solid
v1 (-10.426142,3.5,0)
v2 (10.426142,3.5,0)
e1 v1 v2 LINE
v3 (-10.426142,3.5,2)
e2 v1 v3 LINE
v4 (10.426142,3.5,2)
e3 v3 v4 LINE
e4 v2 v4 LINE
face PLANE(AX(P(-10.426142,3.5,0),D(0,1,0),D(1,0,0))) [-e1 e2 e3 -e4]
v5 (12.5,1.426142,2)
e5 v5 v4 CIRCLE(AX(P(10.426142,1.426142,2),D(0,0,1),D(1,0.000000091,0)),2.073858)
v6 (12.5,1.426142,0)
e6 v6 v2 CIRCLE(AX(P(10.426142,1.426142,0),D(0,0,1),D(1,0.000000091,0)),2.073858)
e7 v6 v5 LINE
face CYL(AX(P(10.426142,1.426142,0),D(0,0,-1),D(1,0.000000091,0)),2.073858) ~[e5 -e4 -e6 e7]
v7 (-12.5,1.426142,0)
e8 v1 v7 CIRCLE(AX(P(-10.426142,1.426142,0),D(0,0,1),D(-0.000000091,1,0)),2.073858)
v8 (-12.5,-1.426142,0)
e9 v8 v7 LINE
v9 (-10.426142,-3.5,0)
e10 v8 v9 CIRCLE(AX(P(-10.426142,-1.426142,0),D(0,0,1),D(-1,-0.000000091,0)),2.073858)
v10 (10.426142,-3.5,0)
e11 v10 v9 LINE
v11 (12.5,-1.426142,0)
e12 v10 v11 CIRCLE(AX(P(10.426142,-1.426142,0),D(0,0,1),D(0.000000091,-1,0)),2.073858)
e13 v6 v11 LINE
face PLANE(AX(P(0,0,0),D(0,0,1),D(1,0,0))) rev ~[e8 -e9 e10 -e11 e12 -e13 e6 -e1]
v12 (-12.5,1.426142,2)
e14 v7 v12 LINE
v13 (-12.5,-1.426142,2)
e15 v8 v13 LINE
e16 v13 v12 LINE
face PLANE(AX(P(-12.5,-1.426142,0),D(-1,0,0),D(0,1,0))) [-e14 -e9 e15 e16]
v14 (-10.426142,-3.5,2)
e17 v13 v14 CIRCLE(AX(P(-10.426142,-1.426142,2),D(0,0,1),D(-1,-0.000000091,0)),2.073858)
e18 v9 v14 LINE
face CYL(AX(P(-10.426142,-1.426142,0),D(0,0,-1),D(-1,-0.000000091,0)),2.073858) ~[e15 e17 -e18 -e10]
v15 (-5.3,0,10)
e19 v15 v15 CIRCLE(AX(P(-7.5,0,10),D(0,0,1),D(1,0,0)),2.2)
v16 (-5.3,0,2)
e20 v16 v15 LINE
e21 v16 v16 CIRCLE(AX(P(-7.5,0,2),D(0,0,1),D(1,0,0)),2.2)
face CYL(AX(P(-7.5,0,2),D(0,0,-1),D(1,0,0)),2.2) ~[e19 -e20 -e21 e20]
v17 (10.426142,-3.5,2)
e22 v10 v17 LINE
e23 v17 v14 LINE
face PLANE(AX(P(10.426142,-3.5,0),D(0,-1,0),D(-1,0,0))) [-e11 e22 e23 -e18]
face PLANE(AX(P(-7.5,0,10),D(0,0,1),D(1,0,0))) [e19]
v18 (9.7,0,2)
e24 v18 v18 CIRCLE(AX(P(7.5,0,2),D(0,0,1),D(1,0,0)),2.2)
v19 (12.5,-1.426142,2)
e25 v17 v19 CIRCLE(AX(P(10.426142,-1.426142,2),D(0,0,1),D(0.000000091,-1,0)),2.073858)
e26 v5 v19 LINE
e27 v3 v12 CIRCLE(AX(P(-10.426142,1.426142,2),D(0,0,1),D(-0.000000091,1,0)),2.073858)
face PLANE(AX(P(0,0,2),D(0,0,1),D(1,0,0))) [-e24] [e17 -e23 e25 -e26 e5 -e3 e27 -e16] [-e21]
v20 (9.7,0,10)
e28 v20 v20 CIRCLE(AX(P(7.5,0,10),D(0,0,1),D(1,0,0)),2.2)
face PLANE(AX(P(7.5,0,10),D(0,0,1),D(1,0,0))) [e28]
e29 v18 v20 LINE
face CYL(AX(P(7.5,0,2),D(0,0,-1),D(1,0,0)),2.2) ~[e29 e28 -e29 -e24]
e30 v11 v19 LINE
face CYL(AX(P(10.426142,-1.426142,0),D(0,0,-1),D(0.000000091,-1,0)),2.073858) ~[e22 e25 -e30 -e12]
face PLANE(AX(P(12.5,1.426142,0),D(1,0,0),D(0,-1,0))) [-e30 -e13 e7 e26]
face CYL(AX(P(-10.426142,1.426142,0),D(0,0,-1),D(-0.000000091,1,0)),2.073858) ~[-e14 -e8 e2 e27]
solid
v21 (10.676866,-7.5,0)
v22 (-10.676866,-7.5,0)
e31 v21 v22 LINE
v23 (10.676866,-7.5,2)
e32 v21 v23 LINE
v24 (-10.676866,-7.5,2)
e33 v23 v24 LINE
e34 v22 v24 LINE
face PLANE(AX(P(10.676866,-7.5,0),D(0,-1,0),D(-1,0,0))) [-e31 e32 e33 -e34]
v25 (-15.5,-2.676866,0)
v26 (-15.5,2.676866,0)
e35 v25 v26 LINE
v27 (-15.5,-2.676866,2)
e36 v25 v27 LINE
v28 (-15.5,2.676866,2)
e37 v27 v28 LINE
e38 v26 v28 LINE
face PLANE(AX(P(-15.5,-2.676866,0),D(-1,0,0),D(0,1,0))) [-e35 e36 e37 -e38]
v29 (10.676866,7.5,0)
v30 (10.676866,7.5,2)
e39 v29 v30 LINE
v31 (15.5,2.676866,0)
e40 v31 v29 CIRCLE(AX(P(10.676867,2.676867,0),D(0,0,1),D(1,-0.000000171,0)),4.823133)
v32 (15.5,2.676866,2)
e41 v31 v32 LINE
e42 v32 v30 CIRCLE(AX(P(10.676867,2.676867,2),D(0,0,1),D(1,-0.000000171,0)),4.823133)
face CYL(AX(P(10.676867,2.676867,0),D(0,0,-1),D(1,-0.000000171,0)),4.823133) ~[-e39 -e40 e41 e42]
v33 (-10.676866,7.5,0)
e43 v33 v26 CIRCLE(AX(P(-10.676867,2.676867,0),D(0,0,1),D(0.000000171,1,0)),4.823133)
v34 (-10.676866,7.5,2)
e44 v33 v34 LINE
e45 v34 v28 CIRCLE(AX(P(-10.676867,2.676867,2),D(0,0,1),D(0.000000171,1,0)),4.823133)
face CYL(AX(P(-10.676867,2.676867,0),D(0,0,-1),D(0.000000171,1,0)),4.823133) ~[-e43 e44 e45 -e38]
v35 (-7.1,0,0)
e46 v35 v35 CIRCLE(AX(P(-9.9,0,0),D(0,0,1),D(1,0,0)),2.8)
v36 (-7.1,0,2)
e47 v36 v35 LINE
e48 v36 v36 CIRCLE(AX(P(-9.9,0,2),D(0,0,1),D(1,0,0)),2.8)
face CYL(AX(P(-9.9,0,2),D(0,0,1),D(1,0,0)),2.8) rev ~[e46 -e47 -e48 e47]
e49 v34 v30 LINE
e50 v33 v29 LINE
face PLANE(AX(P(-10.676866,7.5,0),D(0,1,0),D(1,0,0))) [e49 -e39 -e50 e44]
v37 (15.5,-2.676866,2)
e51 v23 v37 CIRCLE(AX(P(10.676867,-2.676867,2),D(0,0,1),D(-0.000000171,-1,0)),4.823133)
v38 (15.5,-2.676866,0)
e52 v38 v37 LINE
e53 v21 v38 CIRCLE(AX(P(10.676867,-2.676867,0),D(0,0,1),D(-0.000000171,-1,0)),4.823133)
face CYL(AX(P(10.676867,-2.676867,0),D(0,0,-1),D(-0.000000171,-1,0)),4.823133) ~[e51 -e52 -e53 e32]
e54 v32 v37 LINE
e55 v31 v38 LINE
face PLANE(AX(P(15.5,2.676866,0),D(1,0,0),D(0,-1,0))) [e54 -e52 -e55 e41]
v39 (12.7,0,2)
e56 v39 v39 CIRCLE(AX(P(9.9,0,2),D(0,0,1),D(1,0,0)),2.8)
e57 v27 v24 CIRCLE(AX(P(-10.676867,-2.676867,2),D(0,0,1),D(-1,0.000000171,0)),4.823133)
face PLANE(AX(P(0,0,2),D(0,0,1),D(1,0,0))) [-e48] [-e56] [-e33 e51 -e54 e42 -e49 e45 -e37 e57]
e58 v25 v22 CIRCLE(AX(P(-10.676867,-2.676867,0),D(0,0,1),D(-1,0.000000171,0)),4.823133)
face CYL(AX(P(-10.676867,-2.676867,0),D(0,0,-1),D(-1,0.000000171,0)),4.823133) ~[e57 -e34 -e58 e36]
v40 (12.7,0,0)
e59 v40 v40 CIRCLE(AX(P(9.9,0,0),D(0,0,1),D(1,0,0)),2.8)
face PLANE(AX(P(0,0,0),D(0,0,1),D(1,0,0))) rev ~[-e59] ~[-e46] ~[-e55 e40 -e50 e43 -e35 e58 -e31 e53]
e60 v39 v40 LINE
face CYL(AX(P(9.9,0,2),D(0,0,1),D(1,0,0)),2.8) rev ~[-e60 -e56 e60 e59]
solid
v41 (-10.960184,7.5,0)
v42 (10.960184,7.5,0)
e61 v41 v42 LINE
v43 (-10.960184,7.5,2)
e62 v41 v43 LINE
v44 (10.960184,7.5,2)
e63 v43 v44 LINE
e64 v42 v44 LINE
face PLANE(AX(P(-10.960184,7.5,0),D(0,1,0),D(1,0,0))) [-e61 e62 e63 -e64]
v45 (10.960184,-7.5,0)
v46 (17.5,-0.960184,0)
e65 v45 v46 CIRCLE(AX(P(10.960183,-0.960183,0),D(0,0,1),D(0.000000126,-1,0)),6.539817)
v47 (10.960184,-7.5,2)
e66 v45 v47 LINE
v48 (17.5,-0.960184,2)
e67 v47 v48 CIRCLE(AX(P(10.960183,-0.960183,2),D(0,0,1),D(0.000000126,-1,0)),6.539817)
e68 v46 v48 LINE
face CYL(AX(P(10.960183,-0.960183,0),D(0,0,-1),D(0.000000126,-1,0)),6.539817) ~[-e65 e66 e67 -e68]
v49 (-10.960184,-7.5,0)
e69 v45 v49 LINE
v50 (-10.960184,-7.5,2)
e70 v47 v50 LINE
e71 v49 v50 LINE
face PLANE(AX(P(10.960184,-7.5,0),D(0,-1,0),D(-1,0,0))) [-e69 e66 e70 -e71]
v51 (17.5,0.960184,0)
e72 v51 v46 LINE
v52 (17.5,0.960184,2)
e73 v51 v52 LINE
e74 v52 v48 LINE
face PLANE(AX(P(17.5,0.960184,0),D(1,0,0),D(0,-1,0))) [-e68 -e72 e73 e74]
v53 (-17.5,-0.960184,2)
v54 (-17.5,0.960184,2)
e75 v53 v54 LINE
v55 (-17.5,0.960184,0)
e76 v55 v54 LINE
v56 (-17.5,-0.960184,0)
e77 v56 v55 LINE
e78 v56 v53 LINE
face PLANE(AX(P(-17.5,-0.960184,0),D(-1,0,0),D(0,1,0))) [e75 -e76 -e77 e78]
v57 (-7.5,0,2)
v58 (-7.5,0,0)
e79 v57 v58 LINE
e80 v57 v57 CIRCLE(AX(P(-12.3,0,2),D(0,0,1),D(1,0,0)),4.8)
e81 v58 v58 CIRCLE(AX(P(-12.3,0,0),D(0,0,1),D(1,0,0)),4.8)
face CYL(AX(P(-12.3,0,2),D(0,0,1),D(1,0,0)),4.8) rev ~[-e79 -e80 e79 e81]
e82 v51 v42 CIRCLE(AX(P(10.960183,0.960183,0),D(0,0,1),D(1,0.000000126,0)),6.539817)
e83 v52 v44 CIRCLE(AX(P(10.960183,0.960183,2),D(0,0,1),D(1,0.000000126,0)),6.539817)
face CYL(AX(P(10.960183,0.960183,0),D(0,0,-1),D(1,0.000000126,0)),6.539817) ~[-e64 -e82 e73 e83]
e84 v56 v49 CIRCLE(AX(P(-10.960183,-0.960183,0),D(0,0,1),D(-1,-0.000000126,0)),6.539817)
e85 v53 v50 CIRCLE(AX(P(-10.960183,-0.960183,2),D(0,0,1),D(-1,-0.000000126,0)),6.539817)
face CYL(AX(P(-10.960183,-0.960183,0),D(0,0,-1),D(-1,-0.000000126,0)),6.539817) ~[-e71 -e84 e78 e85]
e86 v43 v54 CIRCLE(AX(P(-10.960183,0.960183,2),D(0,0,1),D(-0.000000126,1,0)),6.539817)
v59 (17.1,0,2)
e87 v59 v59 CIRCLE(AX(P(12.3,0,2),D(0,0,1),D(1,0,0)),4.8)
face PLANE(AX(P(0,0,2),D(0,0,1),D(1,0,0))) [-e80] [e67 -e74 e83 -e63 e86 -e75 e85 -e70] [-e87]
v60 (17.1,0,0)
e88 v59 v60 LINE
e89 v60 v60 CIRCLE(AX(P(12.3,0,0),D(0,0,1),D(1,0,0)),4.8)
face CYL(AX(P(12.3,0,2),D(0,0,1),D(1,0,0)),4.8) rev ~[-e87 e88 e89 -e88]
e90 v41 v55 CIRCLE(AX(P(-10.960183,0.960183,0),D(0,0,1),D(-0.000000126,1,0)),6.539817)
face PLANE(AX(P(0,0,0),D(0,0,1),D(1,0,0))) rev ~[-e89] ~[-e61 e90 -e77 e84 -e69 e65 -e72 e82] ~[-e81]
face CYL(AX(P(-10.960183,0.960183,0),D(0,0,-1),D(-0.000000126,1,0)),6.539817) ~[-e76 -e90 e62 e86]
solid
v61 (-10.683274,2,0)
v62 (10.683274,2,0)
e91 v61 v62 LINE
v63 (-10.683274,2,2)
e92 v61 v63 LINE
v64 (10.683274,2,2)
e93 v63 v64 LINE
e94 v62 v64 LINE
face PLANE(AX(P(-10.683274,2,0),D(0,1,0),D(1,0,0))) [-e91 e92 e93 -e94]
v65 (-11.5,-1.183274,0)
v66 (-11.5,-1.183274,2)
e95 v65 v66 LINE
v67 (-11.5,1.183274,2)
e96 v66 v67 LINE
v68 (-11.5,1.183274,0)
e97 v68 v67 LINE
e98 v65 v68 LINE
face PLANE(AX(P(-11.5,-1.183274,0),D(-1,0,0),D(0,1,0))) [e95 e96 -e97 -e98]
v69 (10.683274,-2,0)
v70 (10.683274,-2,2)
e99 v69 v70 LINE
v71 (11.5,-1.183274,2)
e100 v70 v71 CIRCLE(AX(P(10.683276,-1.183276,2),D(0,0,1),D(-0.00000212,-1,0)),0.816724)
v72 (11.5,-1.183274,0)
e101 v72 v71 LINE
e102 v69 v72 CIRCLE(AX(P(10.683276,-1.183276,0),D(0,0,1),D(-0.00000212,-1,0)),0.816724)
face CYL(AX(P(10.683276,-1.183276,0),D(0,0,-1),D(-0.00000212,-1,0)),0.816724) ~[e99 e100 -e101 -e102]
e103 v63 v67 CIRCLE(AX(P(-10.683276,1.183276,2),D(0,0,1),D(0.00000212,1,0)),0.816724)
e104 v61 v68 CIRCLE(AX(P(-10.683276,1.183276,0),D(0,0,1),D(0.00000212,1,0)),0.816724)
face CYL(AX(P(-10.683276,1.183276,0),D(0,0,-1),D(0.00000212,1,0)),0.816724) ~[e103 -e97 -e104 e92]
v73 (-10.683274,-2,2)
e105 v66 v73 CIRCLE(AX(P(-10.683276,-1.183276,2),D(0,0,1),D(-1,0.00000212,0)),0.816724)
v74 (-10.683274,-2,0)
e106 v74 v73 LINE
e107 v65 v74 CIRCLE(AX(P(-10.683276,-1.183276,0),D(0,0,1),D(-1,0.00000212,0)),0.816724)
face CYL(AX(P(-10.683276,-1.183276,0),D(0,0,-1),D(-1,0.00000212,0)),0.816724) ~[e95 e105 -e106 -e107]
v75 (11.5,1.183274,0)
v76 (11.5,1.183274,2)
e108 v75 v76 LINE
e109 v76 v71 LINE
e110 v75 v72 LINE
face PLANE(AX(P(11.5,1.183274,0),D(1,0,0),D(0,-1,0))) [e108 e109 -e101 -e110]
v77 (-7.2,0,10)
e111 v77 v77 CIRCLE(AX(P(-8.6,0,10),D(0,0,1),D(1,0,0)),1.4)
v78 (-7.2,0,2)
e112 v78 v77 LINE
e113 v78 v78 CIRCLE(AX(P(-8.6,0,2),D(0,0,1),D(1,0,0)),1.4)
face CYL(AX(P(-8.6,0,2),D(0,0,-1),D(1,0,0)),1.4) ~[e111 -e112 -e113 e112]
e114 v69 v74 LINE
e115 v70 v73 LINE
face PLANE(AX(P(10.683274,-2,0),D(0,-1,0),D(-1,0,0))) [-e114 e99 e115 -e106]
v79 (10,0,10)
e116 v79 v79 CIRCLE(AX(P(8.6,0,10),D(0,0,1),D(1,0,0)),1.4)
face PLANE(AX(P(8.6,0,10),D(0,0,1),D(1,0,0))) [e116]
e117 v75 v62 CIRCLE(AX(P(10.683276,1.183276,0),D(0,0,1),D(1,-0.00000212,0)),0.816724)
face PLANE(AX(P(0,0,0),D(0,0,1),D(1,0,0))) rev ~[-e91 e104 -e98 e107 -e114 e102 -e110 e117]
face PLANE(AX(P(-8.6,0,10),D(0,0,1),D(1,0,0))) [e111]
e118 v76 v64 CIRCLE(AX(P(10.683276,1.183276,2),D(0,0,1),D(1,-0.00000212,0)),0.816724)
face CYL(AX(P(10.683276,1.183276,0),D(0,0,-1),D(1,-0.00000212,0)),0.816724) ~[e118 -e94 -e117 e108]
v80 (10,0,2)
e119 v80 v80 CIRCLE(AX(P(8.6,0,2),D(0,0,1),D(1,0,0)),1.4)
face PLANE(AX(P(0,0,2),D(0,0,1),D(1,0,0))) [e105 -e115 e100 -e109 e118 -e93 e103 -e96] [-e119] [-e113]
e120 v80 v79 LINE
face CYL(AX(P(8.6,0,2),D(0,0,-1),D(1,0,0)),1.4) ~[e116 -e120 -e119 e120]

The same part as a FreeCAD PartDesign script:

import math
import FreeCAD as App
import Part
import Sketcher

V = App.Vector

doc = App.newDocument("Part")
body = doc.addObject("PartDesign::Body", "Body")

sketch1 = doc.addObject("Sketcher::SketchObject", "Sketch")
body.addObject(sketch1)
sketch1.AttachmentSupport = (doc.XY_Plane, [""])
sketch1.MapMode = "FlatFace"
sketch1.addGeometry([
    Part.ArcOfCircle(Part.Circle(V(-10.4, 1.4, 0), V(0, 0, 1), 2.1), math.radians(90), math.radians(180)),
    Part.LineSegment(V(-12.5, 1.4, 0), V(-12.5, -1.4, 0)),
    Part.ArcOfCircle(Part.Circle(V(-10.4, -1.4, 0), V(0, 0, 1), 2.1), math.radians(-180), math.radians(-90)),
    Part.LineSegment(V(-10.4, -3.5, 0), V(10.4, -3.5, 0)),
    Part.ArcOfCircle(Part.Circle(V(10.4, -1.4, 0), V(0, 0, 1), 2.1), math.radians(-90), math.radians(0)),
    Part.LineSegment(V(12.5, -1.4, 0), V(12.5, 1.4, 0)),
    Part.ArcOfCircle(Part.Circle(V(10.4, 1.4, 0), V(0, 0, 1), 2.1), math.radians(0), math.radians(90)),
    Part.LineSegment(V(10.4, 3.5, 0), V(-10.4, 3.5, 0)),
], False)
sketch1.addConstraint([
    Sketcher.Constraint("Tangent", 0, 2, 1, 1),
    Sketcher.Constraint("Tangent", 1, 2, 2, 1),
    Sketcher.Constraint("Tangent", 2, 2, 3, 1),
    Sketcher.Constraint("Tangent", 3, 2, 4, 1),
    Sketcher.Constraint("Tangent", 4, 2, 5, 1),
    Sketcher.Constraint("Tangent", 5, 2, 6, 1),
    Sketcher.Constraint("Tangent", 6, 2, 7, 1),
    Sketcher.Constraint("Tangent", 7, 2, 0, 1),
    Sketcher.Constraint("Vertical", 1),
    Sketcher.Constraint("Horizontal", 3),
    Sketcher.Constraint("Vertical", 5),
    Sketcher.Constraint("Horizontal", 7),
    Sketcher.Constraint("Equal", 0, 2),
    Sketcher.Constraint("Equal", 2, 4),
    Sketcher.Constraint("Equal", 4, 6),
    Sketcher.Constraint("Symmetric", 0, 3, 4, 3, -1, 1),
    Sketcher.Constraint("DistanceY", 3, 2, 6, 2, 7.0),
    Sketcher.Constraint("DistanceX", 0, 2, -1, 1, 12.5),
    Sketcher.Constraint("Radius", 0, 2.073858),
])
pad1 = doc.addObject("PartDesign::Pad", "Pad")
body.addObject(pad1)
pad1.Profile = sketch1
pad1.Length = 2

sketch2 = doc.addObject("Sketcher::SketchObject", "Sketch001")
body.addObject(sketch2)
sketch2.AttachmentSupport = (doc.XY_Plane, [""])
sketch2.MapMode = "FlatFace"
sketch2.AttachmentOffset = App.Placement(V(0, 0, 2), App.Rotation())
sketch2.addGeometry([
    Part.Circle(V(-7.5, 0, 0), V(0, 0, 1), 2.2),
    Part.Circle(V(7.5, 0, 0), V(0, 0, 1), 2.2),
], False)
sketch2.addConstraint([
    Sketcher.Constraint("Equal", 0, 1),
    Sketcher.Constraint("Symmetric", 0, 3, 1, 3, -1, 1),
    Sketcher.Constraint("PointOnObject", 0, 3, -1),
    Sketcher.Constraint("Diameter", 0, 4.4),
    Sketcher.Constraint("DistanceX", 0, 3, 1, 3, 15.0),
])
pad2 = doc.addObject("PartDesign::Pad", "Pad001")
body.addObject(pad2)
pad2.Profile = sketch2
pad2.Length = 8
body2 = doc.addObject("PartDesign::Body", "Body001")

sketch3 = doc.addObject("Sketcher::SketchObject", "Sketch002")
body2.addObject(sketch3)
sketch3.AttachmentSupport = (doc.getObject("XY_Plane001"), [""])
sketch3.MapMode = "FlatFace"
sketch3.addGeometry([
    Part.ArcOfCircle(Part.Circle(V(-11, 1, 0), V(0, 0, 1), 6.5), math.radians(90), math.radians(180)),
    Part.LineSegment(V(-17.5, 1, 0), V(-17.5, -1, 0)),
    Part.ArcOfCircle(Part.Circle(V(-11, -1, 0), V(0, 0, 1), 6.5), math.radians(-180), math.radians(-90)),
    Part.LineSegment(V(-11, -7.5, 0), V(11, -7.5, 0)),
    Part.ArcOfCircle(Part.Circle(V(11, -1, 0), V(0, 0, 1), 6.5), math.radians(-90), math.radians(0)),
    Part.LineSegment(V(17.5, -1, 0), V(17.5, 1, 0)),
    Part.ArcOfCircle(Part.Circle(V(11, 1, 0), V(0, 0, 1), 6.5), math.radians(0), math.radians(90)),
    Part.LineSegment(V(11, 7.5, 0), V(-11, 7.5, 0)),
], False)
sketch3.addConstraint([
    Sketcher.Constraint("Tangent", 0, 2, 1, 1),
    Sketcher.Constraint("Tangent", 1, 2, 2, 1),
    Sketcher.Constraint("Tangent", 2, 2, 3, 1),
    Sketcher.Constraint("Tangent", 3, 2, 4, 1),
    Sketcher.Constraint("Tangent", 4, 2, 5, 1),
    Sketcher.Constraint("Tangent", 5, 2, 6, 1),
    Sketcher.Constraint("Tangent", 6, 2, 7, 1),
    Sketcher.Constraint("Tangent", 7, 2, 0, 1),
    Sketcher.Constraint("Vertical", 1),
    Sketcher.Constraint("Horizontal", 3),
    Sketcher.Constraint("Vertical", 5),
    Sketcher.Constraint("Horizontal", 7),
    Sketcher.Constraint("Equal", 0, 2),
    Sketcher.Constraint("Equal", 2, 4),
    Sketcher.Constraint("Equal", 4, 6),
    Sketcher.Constraint("Symmetric", 0, 3, 4, 3, -1, 1),
    Sketcher.Constraint("DistanceY", 3, 2, 6, 2, 15.0),
    Sketcher.Constraint("DistanceX", 0, 2, -1, 1, 17.5),
    Sketcher.Constraint("Radius", 0, 6.539817),
])
pad3 = doc.addObject("PartDesign::Pad", "Pad002")
body2.addObject(pad3)
pad3.Profile = sketch3
pad3.Length = 2

sketch4 = doc.addObject("Sketcher::SketchObject", "Sketch003")
body2.addObject(sketch4)
sketch4.AttachmentSupport = (doc.getObject("XY_Plane001"), [""])
sketch4.MapMode = "FlatFace"
sketch4.AttachmentOffset = App.Placement(V(0, 0, 2), App.Rotation())
sketch4.addGeometry([
    Part.Circle(V(-12.3, 0, 0), V(0, 0, 1), 4.8),
    Part.Circle(V(12.3, 0, 0), V(0, 0, 1), 4.8),
], False)
sketch4.addConstraint([
    Sketcher.Constraint("Equal", 0, 1),
    Sketcher.Constraint("Symmetric", 0, 3, 1, 3, -1, 1),
    Sketcher.Constraint("PointOnObject", 0, 3, -1),
    Sketcher.Constraint("Diameter", 0, 9.6),
    Sketcher.Constraint("DistanceX", 0, 3, -1, 1, 12.3),
])
pocket1 = doc.addObject("PartDesign::Pocket", "Pocket")
body2.addObject(pocket1)
pocket1.Profile = sketch4
pocket1.Length = 5
body3 = doc.addObject("PartDesign::Body", "Body002")

sketch5 = doc.addObject("Sketcher::SketchObject", "Sketch004")
body3.addObject(sketch5)
sketch5.AttachmentSupport = (doc.getObject("XY_Plane002"), [""])
sketch5.MapMode = "FlatFace"
sketch5.addGeometry([
    Part.ArcOfCircle(Part.Circle(V(-10.7, 1.2, 0), V(0, 0, 1), 0.8), math.radians(90), math.radians(180)),
    Part.LineSegment(V(-11.5, 1.2, 0), V(-11.5, -1.2, 0)),
    Part.ArcOfCircle(Part.Circle(V(-10.7, -1.2, 0), V(0, 0, 1), 0.8), math.radians(180), math.radians(270)),
    Part.LineSegment(V(-10.7, -2, 0), V(10.7, -2, 0)),
    Part.ArcOfCircle(Part.Circle(V(10.7, -1.2, 0), V(0, 0, 1), 0.8), math.radians(-90), math.radians(0)),
    Part.LineSegment(V(11.5, -1.2, 0), V(11.5, 1.2, 0)),
    Part.ArcOfCircle(Part.Circle(V(10.7, 1.2, 0), V(0, 0, 1), 0.8), math.radians(0), math.radians(90)),
    Part.LineSegment(V(10.7, 2, 0), V(-10.7, 2, 0)),
], False)
sketch5.addConstraint([
    Sketcher.Constraint("Coincident", 0, 2, 1, 1),
    Sketcher.Constraint("Coincident", 1, 2, 2, 1),
    Sketcher.Constraint("Coincident", 2, 2, 3, 1),
    Sketcher.Constraint("Coincident", 3, 2, 4, 1),
    Sketcher.Constraint("Coincident", 4, 2, 5, 1),
    Sketcher.Constraint("Coincident", 5, 2, 6, 1),
    Sketcher.Constraint("Coincident", 6, 2, 7, 1),
    Sketcher.Constraint("Coincident", 7, 2, 0, 1),
    Sketcher.Constraint("Vertical", 1),
    Sketcher.Constraint("Horizontal", 3),
    Sketcher.Constraint("Vertical", 5),
    Sketcher.Constraint("Horizontal", 7),
    Sketcher.Constraint("Equal", 0, 2),
    Sketcher.Constraint("Equal", 2, 4),
    Sketcher.Constraint("Equal", 4, 6),
    Sketcher.Constraint("Symmetric", 0, 3, 4, 3, -1, 1),
    Sketcher.Constraint("Horizontal", 6, 3, 0, 2),
    Sketcher.Constraint("Horizontal", 4, 3, 1, 2),
    Sketcher.Constraint("Horizontal", 1, 2, 4, 2),
    Sketcher.Constraint("Horizontal", 0, 2, 5, 2),
    Sketcher.Constraint("Vertical", 0, 3, 2, 2),
    Sketcher.Constraint("Vertical", 6, 3, 3, 2),
    Sketcher.Constraint("Vertical", 3, 2, 6, 2),
    Sketcher.Constraint("Vertical", 2, 2, 7, 2),
    Sketcher.Constraint("DistanceY", 2, 2, -1, 1, 2.0),
    Sketcher.Constraint("DistanceX", 0, 2, -1, 1, 11.5),
    Sketcher.Constraint("Radius", 0, 0.816724),
])
pad4 = doc.addObject("PartDesign::Pad", "Pad003")
body3.addObject(pad4)
pad4.Profile = sketch5
pad4.Length = 2

sketch6 = doc.addObject("Sketcher::SketchObject", "Sketch005")
body3.addObject(sketch6)
sketch6.AttachmentSupport = (doc.getObject("XY_Plane002"), [""])
sketch6.MapMode = "FlatFace"
sketch6.AttachmentOffset = App.Placement(V(0, 0, 2), App.Rotation())
sketch6.addGeometry([
    Part.Circle(V(-8.6, 0, 0), V(0, 0, 1), 1.4),
    Part.Circle(V(8.6, 0, 0), V(0, 0, 1), 1.4),
], False)
sketch6.addConstraint([
    Sketcher.Constraint("Equal", 0, 1),
    Sketcher.Constraint("Symmetric", 0, 3, 1, 3, -1, 1),
    Sketcher.Constraint("PointOnObject", 0, 3, -1),
    Sketcher.Constraint("Diameter", 0, 2.8),
    Sketcher.Constraint("DistanceX", 0, 3, -1, 1, 8.6),
])
pad5 = doc.addObject("PartDesign::Pad", "Pad004")
body3.addObject(pad5)
pad5.Profile = sketch6
pad5.Length = 8
body4 = doc.addObject("PartDesign::Body", "Body003")

sketch7 = doc.addObject("Sketcher::SketchObject", "Sketch006")
body4.addObject(sketch7)
sketch7.AttachmentSupport = (doc.getObject("XY_Plane003"), [""])
sketch7.MapMode = "FlatFace"
sketch7.addGeometry([
    Part.ArcOfCircle(Part.Circle(V(-10.7, 2.7, 0), V(0, 0, 1), 4.8), math.radians(90), math.radians(180)),
    Part.LineSegment(V(-15.5, 2.7, 0), V(-15.5, -2.7, 0)),
    Part.ArcOfCircle(Part.Circle(V(-10.7, -2.7, 0), V(0, 0, 1), 4.8), math.radians(180), math.radians(270)),
    Part.LineSegment(V(-10.7, -7.5, 0), V(10.7, -7.5, 0)),
    Part.ArcOfCircle(Part.Circle(V(10.7, -2.7, 0), V(0, 0, 1), 4.8), math.radians(-90), math.radians(0)),
    Part.LineSegment(V(15.5, -2.7, 0), V(15.5, 2.7, 0)),
    Part.ArcOfCircle(Part.Circle(V(10.7, 2.7, 0), V(0, 0, 1), 4.8), math.radians(0), math.radians(90)),
    Part.LineSegment(V(10.7, 7.5, 0), V(-10.7, 7.5, 0)),
], False)
sketch7.addConstraint([
    Sketcher.Constraint("Tangent", 0, 2, 1, 1),
    Sketcher.Constraint("Tangent", 1, 2, 2, 1),
    Sketcher.Constraint("Tangent", 2, 2, 3, 1),
    Sketcher.Constraint("Tangent", 3, 2, 4, 1),
    Sketcher.Constraint("Tangent", 4, 2, 5, 1),
    Sketcher.Constraint("Tangent", 5, 2, 6, 1),
    Sketcher.Constraint("Tangent", 6, 2, 7, 1),
    Sketcher.Constraint("Tangent", 7, 2, 0, 1),
    Sketcher.Constraint("Vertical", 1),
    Sketcher.Constraint("Horizontal", 3),
    Sketcher.Constraint("Vertical", 5),
    Sketcher.Constraint("Horizontal", 7),
    Sketcher.Constraint("Equal", 0, 2),
    Sketcher.Constraint("Equal", 2, 4),
    Sketcher.Constraint("Equal", 4, 6),
    Sketcher.Constraint("Symmetric", 0, 3, 4, 3, -1, 1),
    Sketcher.Constraint("DistanceY", 3, 2, 6, 2, 15.0),
    Sketcher.Constraint("DistanceX", 0, 2, -1, 1, 15.5),
    Sketcher.Constraint("Radius", 0, 4.823133),
])
pad6 = doc.addObject("PartDesign::Pad", "Pad005")
body4.addObject(pad6)
pad6.Profile = sketch7
pad6.Length = 2

sketch8 = doc.addObject("Sketcher::SketchObject", "Sketch007")
body4.addObject(sketch8)
sketch8.AttachmentSupport = (doc.getObject("XY_Plane003"), [""])
sketch8.MapMode = "FlatFace"
sketch8.AttachmentOffset = App.Placement(V(0, 0, 2), App.Rotation())
sketch8.addGeometry([
    Part.Circle(V(-9.9, 0, 0), V(0, 0, 1), 2.8),
    Part.Circle(V(9.9, 0, 0), V(0, 0, 1), 2.8),
], False)
sketch8.addConstraint([
    Sketcher.Constraint("Equal", 0, 1),
    Sketcher.Constraint("Symmetric", 0, 3, 1, 3, -1, 1),
    Sketcher.Constraint("PointOnObject", 0, 3, -1),
    Sketcher.Constraint("Diameter", 0, 5.6),
    Sketcher.Constraint("DistanceX", 0, 3, -1, 1, 9.9),
])
pocket2 = doc.addObject("PartDesign::Pocket", "Pocket001")
body4.addObject(pocket2)
pocket2.Profile = sketch8
pocket2.Length = 5

doc.recompute()
